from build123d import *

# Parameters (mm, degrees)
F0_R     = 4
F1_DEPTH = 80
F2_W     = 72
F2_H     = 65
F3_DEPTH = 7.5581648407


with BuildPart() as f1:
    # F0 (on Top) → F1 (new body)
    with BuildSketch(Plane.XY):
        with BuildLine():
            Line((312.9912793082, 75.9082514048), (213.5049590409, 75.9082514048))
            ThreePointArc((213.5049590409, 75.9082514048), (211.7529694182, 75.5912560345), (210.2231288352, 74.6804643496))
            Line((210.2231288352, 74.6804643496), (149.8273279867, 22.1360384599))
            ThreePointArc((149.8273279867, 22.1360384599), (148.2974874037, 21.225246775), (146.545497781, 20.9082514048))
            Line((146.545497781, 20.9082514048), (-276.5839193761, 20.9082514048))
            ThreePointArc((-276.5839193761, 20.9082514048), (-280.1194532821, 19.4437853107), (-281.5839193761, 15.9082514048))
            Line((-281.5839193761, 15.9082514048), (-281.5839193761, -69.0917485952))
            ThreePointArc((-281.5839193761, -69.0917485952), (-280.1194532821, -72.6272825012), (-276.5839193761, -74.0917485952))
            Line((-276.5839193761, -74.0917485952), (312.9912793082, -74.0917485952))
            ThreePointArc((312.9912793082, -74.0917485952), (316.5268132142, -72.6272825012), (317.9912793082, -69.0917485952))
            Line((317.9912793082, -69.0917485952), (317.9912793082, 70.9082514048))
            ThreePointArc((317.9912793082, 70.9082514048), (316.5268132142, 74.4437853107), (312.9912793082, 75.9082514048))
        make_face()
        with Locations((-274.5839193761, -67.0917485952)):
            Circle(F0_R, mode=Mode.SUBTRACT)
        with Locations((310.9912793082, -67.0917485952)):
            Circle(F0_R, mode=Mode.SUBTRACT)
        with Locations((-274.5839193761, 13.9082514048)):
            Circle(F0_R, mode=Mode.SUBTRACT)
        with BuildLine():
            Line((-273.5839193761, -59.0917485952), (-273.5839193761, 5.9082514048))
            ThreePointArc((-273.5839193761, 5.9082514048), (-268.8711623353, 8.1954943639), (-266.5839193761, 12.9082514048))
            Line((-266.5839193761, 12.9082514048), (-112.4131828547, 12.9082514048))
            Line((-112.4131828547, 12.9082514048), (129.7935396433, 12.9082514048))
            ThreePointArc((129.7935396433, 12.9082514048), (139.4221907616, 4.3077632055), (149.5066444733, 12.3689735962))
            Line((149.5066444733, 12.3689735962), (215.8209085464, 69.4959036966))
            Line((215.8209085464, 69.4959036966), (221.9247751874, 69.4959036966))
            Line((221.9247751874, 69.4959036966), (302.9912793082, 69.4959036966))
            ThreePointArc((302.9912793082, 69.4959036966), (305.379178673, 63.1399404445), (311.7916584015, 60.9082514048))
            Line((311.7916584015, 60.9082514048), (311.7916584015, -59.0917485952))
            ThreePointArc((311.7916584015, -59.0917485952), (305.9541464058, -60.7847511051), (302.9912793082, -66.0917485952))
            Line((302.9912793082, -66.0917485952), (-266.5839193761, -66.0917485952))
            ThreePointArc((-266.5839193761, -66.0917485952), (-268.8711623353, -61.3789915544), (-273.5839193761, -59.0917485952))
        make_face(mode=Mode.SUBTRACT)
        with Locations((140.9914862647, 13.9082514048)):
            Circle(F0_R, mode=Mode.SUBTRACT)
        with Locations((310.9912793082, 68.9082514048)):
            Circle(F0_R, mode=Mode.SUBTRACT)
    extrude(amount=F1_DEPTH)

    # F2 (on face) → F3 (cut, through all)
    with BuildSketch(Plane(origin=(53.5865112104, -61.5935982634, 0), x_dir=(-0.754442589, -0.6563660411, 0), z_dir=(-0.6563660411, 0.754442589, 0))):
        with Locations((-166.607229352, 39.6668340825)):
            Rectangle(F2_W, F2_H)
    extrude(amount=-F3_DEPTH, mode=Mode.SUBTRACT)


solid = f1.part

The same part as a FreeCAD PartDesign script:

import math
import FreeCAD as App
import Part
import Sketcher

V = App.Vector
Q = App.Units.Quantity

doc = App.newDocument("Part")
params = doc.addObject("Spreadsheet::Sheet", "Params")
for row, (alias, value) in enumerate([
    ("sketch1_diameter", "8 mm"),
    ("sketch1_radius", "5 mm"),
    ("sketch1_radius2", "8 mm"),
    ("sketch1_radius3", "10 mm"),
    ("sketch1_height", "85 mm"),
    ("pad1_length", "80 mm"),
    ("sketch2_width", "72 mm"),
    ("sketch2_height", "65 mm"),
    ("pocket1_length", "7.558165 mm"),
], start=1):
    params.set(f"A{row}", alias)
    params.set(f"B{row}", "=" + value)
    params.setAlias(f"B{row}", alias)

body = doc.addObject("PartDesign::Body", "Body")

# Sketch on XY plane
sketch1 = body.newObject("Sketcher::SketchObject", "Sketch")
sketch1.AttachmentSupport = (doc.getObject("XY_Plane"), [""])
sketch1.MapMode = "FlatFace"
sketch1.addGeometry(Part.LineSegment(V(313, 75.9, 0), V(213.5, 75.9, 0)), False)
sketch1.addGeometry(Part.ArcOfCircle(Part.Circle(V(213.5, 70.9, 0), V(0, 0, 1), 5), math.radians(90), math.radians(131)), False)
sketch1.addGeometry(Part.LineSegment(V(210.2, 74.7, 0), V(149.8, 22.1, 0)), False)
sketch1.addGeometry(Part.ArcOfCircle(Part.Circle(V(146.5, 25.9, 0), V(0, 0, 1), 5), math.radians(-90), math.radians(-49)), False)
sketch1.addGeometry(Part.LineSegment(V(146.5, 20.9, 0), V(-276.6, 20.9, 0)), False)
sketch1.addGeometry(Part.ArcOfCircle(Part.Circle(V(-276.6, 15.9, 0), V(0, 0, 1), 5), math.radians(90), math.radians(180)), False)
sketch1.addGeometry(Part.LineSegment(V(-281.6, 15.9, 0), V(-281.6, -69.1, 0)), False)
sketch1.addGeometry(Part.ArcOfCircle(Part.Circle(V(-276.6, -69.1, 0), V(0, 0, 1), 5), math.radians(180), math.radians(270)), False)
sketch1.addGeometry(Part.LineSegment(V(-276.6, -74.1, 0), V(313, -74.1, 0)), False)
sketch1.addGeometry(Part.ArcOfCircle(Part.Circle(V(313, -69.1, 0), V(0, 0, 1), 5), math.radians(-90), math.radians(0)), False)
sketch1.addGeometry(Part.LineSegment(V(318, -69.1, 0), V(318, 70.9, 0)), False)
sketch1.addGeometry(Part.ArcOfCircle(Part.Circle(V(313, 70.9, 0), V(0, 0, 1), 5), math.radians(0), math.radians(90)), False)
sketch1.addGeometry(Part.Circle(V(-274.6, -67.1, 0), V(0, 0, 1), 4), False)
sketch1.addGeometry(Part.Circle(V(311, -67.1, 0), V(0, 0, 1), 4), False)
sketch1.addGeometry(Part.Circle(V(-274.6, 13.9, 0), V(0, 0, 1), 4), False)
sketch1.addGeometry(Part.ArcOfCircle(Part.Circle(V(-274.5, -67, 0), V(0, 0, 1), 8), math.radians(7), math.radians(83)), False)
sketch1.addGeometry(Part.LineSegment(V(-273.6, -59.1, 0), V(-273.6, 5.9, 0)), False)
sketch1.addGeometry(Part.ArcOfCircle(Part.Circle(V(-274.5, 13.9, 0), V(0, 0, 1), 8), math.radians(-83), math.radians(-7)), False)
sketch1.addGeometry(Part.LineSegment(V(-266.6, 12.9, 0), V(129.8, 12.9, 0)), False)
sketch1.addGeometry(Part.ArcOfCircle(Part.Circle(V(139.7, 14.3, 0), V(0, 0, 1), 10), math.radians(-172), math.radians(-11)), False)
sketch1.addGeometry(Part.LineSegment(V(149.5, 12.4, 0), V(215.8, 69.5, 0)), False)
sketch1.addGeometry(Part.LineSegment(V(215.8, 69.5, 0), V(303, 69.5, 0)), False)
sketch1.addGeometry(Part.ArcOfCircle(Part.Circle(V(311, 68.9, 0), V(0, 0, 1), 8), math.radians(175), math.radians(276)), False)
sketch1.addGeometry(Part.LineSegment(V(311.8, 60.9, 0), V(311.8, -59.1, 0)), False)
sketch1.addGeometry(Part.ArcOfCircle(Part.Circle(V(310.9, -67, 0), V(0, 0, 1), 8), math.radians(84), math.radians(173)), False)
sketch1.addGeometry(Part.LineSegment(V(303, -66.1, 0), V(-266.6, -66.1, 0)), False)
sketch1.addGeometry(Part.Circle(V(141, 13.9, 0), V(0, 0, 1), 4), False)
sketch1.addGeometry(Part.Circle(V(311, 68.9, 0), V(0, 0, 1), 4), False)
sketch1.addConstraint(Sketcher.Constraint("Tangent", 0, 2, 1, 1))
sketch1.addConstraint(Sketcher.Constraint("Tangent", 1, 2, 2, 1))
sketch1.addConstraint(Sketcher.Constraint("Tangent", 2, 2, 3, 2))
sketch1.addConstraint(Sketcher.Constraint("Tangent", 3, 1, 4, 1))
sketch1.addConstraint(Sketcher.Constraint("Tangent", 4, 2, 5, 1))
sketch1.addConstraint(Sketcher.Constraint("Tangent", 5, 2, 6, 1))
sketch1.addConstraint(Sketcher.Constraint("Tangent", 6, 2, 7, 1))
sketch1.addConstraint(Sketcher.Constraint("Tangent", 7, 2, 8, 1))
sketch1.addConstraint(Sketcher.Constraint("Tangent", 8, 2, 9, 1))
sketch1.addConstraint(Sketcher.Constraint("Tangent", 9, 2, 10, 1))
sketch1.addConstraint(Sketcher.Constraint("Tangent", 10, 2, 11, 1))
sketch1.addConstraint(Sketcher.Constraint("Tangent", 11, 2, 0, 1))
sketch1.addConstraint(Sketcher.Constraint("Coincident", 15, 2, 16, 1))
sketch1.addConstraint(Sketcher.Constraint("Coincident", 16, 2, 17, 1))
sketch1.addConstraint(Sketcher.Constraint("Coincident", 17, 2, 18, 1))
sketch1.addConstraint(Sketcher.Constraint("Coincident", 18, 2, 19, 1))
sketch1.addConstraint(Sketcher.Constraint("Coincident", 19, 2, 20, 1))
sketch1.addConstraint(Sketcher.Constraint("Coincident", 20, 2, 21, 1))
sketch1.addConstraint(Sketcher.Constraint("Coincident", 21, 2, 22, 1))
sketch1.addConstraint(Sketcher.Constraint("Coincident", 22, 2, 23, 1))
sketch1.addConstraint(Sketcher.Constraint("Coincident", 23, 2, 24, 1))
sketch1.addConstraint(Sketcher.Constraint("Coincident", 24, 2, 25, 1))
sketch1.addConstraint(Sketcher.Constraint("Coincident", 25, 2, 15, 1))
sketch1.addConstraint(Sketcher.Constraint("Horizontal", 0))
sketch1.addConstraint(Sketcher.Constraint("Horizontal", 4))
sketch1.addConstraint(Sketcher.Constraint("Vertical", 6))
sketch1.addConstraint(Sketcher.Constraint("Horizontal", 8))
sketch1.addConstraint(Sketcher.Constraint("Vertical", 10))
sketch1.addConstraint(Sketcher.Constraint("Vertical", 16))
sketch1.addConstraint(Sketcher.Constraint("Horizontal", 18))
sketch1.addConstraint(Sketcher.Constraint("Horizontal", 21))
sketch1.addConstraint(Sketcher.Constraint("Vertical", 23))
sketch1.addConstraint(Sketcher.Constraint("Horizontal", 25))
sketch1.addConstraint(Sketcher.Constraint("Equal", 1, 3))
sketch1.addConstraint(Sketcher.Constraint("Equal", 3, 5))
sketch1.addConstraint(Sketcher.Constraint("Equal", 5, 7))
sketch1.addConstraint(Sketcher.Constraint("Equal", 7, 9))
sketch1.addConstraint(Sketcher.Constraint("Equal", 9, 11))
sketch1.addConstraint(Sketcher.Constraint("Equal", 12, 13))
sketch1.addConstraint(Sketcher.Constraint("Equal", 13, 14))
sketch1.addConstraint(Sketcher.Constraint("Equal", 15, 17))
sketch1.addConstraint(Sketcher.Constraint("Equal", 17, 22))
sketch1.addConstraint(Sketcher.Constraint("Equal", 22, 24))
sketch1.addConstraint(Sketcher.Constraint("Equal", 14, 26))
sketch1.addConstraint(Sketcher.Constraint("Equal", 26, 27))
sketch1.addConstraint(Sketcher.Constraint("Horizontal", 12, 3, 13, 3))
sketch1.addConstraint(Sketcher.Constraint("Horizontal", 14, 3, 26, 3))
sketch1.addConstraint(Sketcher.Constraint("Horizontal", 15, 2, 23, 2))
sketch1.addConstraint(Sketcher.Constraint("Vertical", 12, 3, 14, 3))
sketch1.addConstraint(Sketcher.Constraint("Vertical", 15, 3, 17, 3))
sketch1.addConstraint(Sketcher.Constraint("Vertical", 13, 3, 27, 3))
sketch1.addConstraint(Sketcher.Constraint("Vertical", 21, 2, 24, 2))
sketch1.addConstraint(Sketcher.Constraint("Vertical", 17, 2, 25, 2))
sketch1.addConstraint(Sketcher.Constraint("Diameter", 12, Q("8 mm")))
sketch1.addConstraint(Sketcher.Constraint("Radius", 1, Q("5 mm")))
sketch1.addConstraint(Sketcher.Constraint("Radius", 15, Q("8 mm")))
sketch1.addConstraint(Sketcher.Constraint("Radius", 19, Q("10 mm")))
sketch1.addConstraint(Sketcher.Constraint("DistanceY", 6, 2, 6, 1, Q("85 mm")))
sketch1.addConstraint(Sketcher.Constraint("DistanceY", 10, 1, 10, 2, Q("140 mm")))
sketch1.addConstraint(Sketcher.Constraint("DistanceY", 16, 1, 16, 2, Q("65 mm")))
sketch1.addConstraint(Sketcher.Constraint("DistanceY", 23, 2, 23, 1, Q("120 mm")))
sketch1.addConstraint(Sketcher.Constraint("DistanceX", 7, 3, 12, 3, Q("2 mm")))
sketch1.addConstraint(Sketcher.Constraint("DistanceY", 7, 3, 12, 3, Q("2 mm")))
sketch1.addConstraint(Sketcher.Constraint("DistanceX", 13, 3, 9, 3, Q("2 mm")))
sketch1.addConstraint(Sketcher.Constraint("DistanceY", 14, 3, 5, 3, Q("2 mm")))
sketch1.addConstraint(Sketcher.Constraint("DistanceY", 27, 3, 11, 3, Q("2 mm")))
sketch1.addConstraint(Sketcher.Constraint("DistanceX", 12, 3, 15, 2, Q("1 mm")))
sketch1.addConstraint(Sketcher.Constraint("DistanceY", 12, 3, 15, 2, Q("8 mm")))
sketch1.addConstraint(Sketcher.Constraint("DistanceX", 14, 3, 17, 2, Q("8 mm")))
sketch1.addConstraint(Sketcher.Constraint("DistanceY", 17, 2, 14, 3, Q("1 mm")))
sketch1.addConstraint(Sketcher.Constraint("DistanceX", 21, 2, 27, 3, Q("8 mm")))
sketch1.addConstraint(Sketcher.Constraint("DistanceX", 8, 1, 8, 2, Q("589.575199 mm")))
sketch1.addConstraint(Sketcher.Constraint("DistanceX", 0, 2, 0, 1, Q("99.48632 mm")))
sketch1.addConstraint(Sketcher.Constraint("DistanceX", 18, 1, 18, 2, Q("396.377459 mm")))
sketch1.addConstraint(Sketcher.Constraint("DistanceX", 21, 1, 21, 2, Q("87.170371 mm")))
sketch1.addConstraint(Sketcher.Constraint("DistanceX", 2, 2, 1, 2, Q("60.395801 mm")))
sketch1.addConstraint(Sketcher.Constraint("DistanceX", -1, 1, 1, 3, Q("213.504959 mm")))
sketch1.addConstraint(Sketcher.Constraint("DistanceY", -1, 1, 1, 3, Q("70.908251 mm")))
sketch1.addConstraint(Sketcher.Constraint("DistanceX", -1, 1, 19, 3, Q("139.695652 mm")))
sketch1.addConstraint(Sketcher.Constraint("DistanceX", -1, 1, 22, 3, Q("310.966408 mm")))
sketch1.addConstraint(Sketcher.Constraint("DistanceX", -1, 1, 22, 2, Q("311.791658 mm")))
sketch1.addConstraint(Sketcher.Constraint("DistanceX", 26, 3, 3, 3, Q("5.554012 mm")))
sketch1.addConstraint(Sketcher.Constraint("DistanceX", 26, 3, 19, 2, Q("8.515158 mm")))
sketch1.setExpression("Constraints[53]", "Params.sketch1_diameter")
sketch1.setExpression("Constraints[54]", "Params.sketch1_radius")
sketch1.setExpression("Constraints[55]", "Params.sketch1_radius2")
sketch1.setExpression("Constraints[56]", "Params.sketch1_radius3")
sketch1.setExpression("Constraints[57]", "Params.sketch1_height")
pad1 = body.newObject("PartDesign::Pad", "Pad")
pad1.Profile = sketch1
pad1.setExpression("Length", "Params.pad1_length")

# Sketch on an angled plane
sketch2 = body.newObject("Sketcher::SketchObject", "Sketch001")
sketch2.Placement = App.Placement(V(53.586511, -61.593598, 0), App.Rotation(V(-0.754442589, -0.656366041, 0), V(0, 0, 1), V(-0.656366041, 0.754442589, 0), "ZXY"))
sketch2.addGeometry(Part.LineSegment(V(-203, 72, 0), V(-203, 7, 0)), False)
sketch2.addGeometry(Part.LineSegment(V(-203, 7, 0), V(-131, 7, 0)), False)
sketch2.addGeometry(Part.LineSegment(V(-131, 7, 0), V(-131, 72, 0)), False)
sketch2.addGeometry(Part.LineSegment(V(-131, 72, 0), V(-203, 72, 0)), False)
sketch2.addConstraint(Sketcher.Constraint("Coincident", 0, 2, 1, 1))
sketch2.addConstraint(Sketcher.Constraint("Coincident", 1, 2, 2, 1))
sketch2.addConstraint(Sketcher.Constraint("Coincident", 2, 2, 3, 1))
sketch2.addConstraint(Sketcher.Constraint("Coincident", 3, 2, 0, 1))
sketch2.addConstraint(Sketcher.Constraint("Vertical", 0))
sketch2.addConstraint(Sketcher.Constraint("Horizontal", 1))
sketch2.addConstraint(Sketcher.Constraint("Vertical", 2))
sketch2.addConstraint(Sketcher.Constraint("Horizontal", 3))
sketch2.addConstraint(Sketcher.Constraint("DistanceX", 1, 1, 1, 2, Q("72 mm")))
sketch2.addConstraint(Sketcher.Constraint("DistanceY", 0, 2, 0, 1, Q("65 mm")))
sketch2.addConstraint(Sketcher.Constraint("DistanceX", 0, 2, -1, 1, Q("202.607229 mm")))
sketch2.addConstraint(Sketcher.Constraint("DistanceY", -1, 1, 0, 2, Q("7.166834 mm")))
sketch2.setExpression("Constraints[8]", "Params.sketch2_width")
sketch2.setExpression("Constraints[9]", "Params.sketch2_height")
pocket1 = body.newObject("PartDesign::Pocket", "Pocket")
pocket1.Profile = sketch2
pocket1.setExpression("Length", "Params.pocket1_length")

doc.recompute()
